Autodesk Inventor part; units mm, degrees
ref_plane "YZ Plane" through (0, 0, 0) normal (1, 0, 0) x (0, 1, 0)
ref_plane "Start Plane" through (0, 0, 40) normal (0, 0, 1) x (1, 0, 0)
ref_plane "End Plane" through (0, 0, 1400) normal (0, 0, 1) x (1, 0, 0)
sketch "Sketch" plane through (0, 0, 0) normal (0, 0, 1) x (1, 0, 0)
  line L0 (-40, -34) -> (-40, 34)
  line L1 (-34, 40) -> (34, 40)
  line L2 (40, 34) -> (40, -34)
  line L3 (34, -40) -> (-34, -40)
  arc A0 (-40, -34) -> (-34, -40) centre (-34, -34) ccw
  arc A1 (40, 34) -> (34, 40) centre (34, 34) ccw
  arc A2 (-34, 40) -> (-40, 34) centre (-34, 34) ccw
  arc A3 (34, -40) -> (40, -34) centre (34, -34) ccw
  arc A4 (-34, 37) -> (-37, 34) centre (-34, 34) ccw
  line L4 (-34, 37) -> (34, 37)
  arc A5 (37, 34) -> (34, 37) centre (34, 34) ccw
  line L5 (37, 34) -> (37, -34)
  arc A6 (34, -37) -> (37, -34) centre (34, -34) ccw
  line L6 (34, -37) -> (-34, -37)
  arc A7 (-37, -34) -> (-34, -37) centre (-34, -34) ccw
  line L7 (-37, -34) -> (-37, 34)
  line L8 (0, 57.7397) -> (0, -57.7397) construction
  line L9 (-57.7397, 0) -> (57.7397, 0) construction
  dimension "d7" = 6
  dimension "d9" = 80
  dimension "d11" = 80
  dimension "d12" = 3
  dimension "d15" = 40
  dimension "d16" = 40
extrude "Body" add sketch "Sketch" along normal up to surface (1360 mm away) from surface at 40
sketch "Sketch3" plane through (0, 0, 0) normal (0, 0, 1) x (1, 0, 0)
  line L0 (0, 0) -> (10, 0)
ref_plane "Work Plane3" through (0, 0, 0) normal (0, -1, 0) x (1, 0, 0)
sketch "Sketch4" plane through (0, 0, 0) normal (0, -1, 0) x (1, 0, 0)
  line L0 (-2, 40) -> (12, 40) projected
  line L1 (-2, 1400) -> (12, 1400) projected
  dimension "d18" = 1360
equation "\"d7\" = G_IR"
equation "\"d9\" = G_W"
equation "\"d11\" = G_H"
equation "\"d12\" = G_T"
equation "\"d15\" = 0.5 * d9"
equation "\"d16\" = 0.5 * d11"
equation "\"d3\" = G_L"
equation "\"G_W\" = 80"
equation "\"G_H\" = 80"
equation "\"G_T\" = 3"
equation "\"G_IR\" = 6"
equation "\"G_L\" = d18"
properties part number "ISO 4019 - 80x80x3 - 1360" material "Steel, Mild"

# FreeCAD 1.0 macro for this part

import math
import FreeCAD as App
import Part
import Sketcher

doc = App.newDocument("Part")
body = doc.addObject("PartDesign::Body", "Body")

# Sketch on XY plane
sketch1 = doc.addObject("Sketcher::SketchObject", "Sketch")
body.addObject(sketch1)
sketch1.AttachmentSupport = (doc.XY_Plane, [""])
sketch1.MapMode = "FlatFace"
sketch1.AttachmentOffset = App.Placement(App.Vector(0, 0, 40), App.Rotation())
sketch1.addGeometry([
    Part.LineSegment(App.Vector(-40, 34, 0), App.Vector(-40, -34, 0)),  # 0
    Part.ArcOfCircle(Part.Circle(App.Vector(-34, -34, 0), App.Vector(0, 0, 1), 6), math.radians(180), math.radians(270)),  # 1
    Part.LineSegment(App.Vector(-34, -40, 0), App.Vector(34, -40, 0)),  # 2
    Part.ArcOfCircle(Part.Circle(App.Vector(34, -34, 0), App.Vector(0, 0, 1), 6), math.radians(-90), math.radians(0)),  # 3
    Part.LineSegment(App.Vector(40, -34, 0), App.Vector(40, 34, 0)),  # 4
    Part.ArcOfCircle(Part.Circle(App.Vector(34, 34, 0), App.Vector(0, 0, 1), 6), math.radians(0), math.radians(90)),  # 5
    Part.LineSegment(App.Vector(34, 40, 0), App.Vector(-34, 40, 0)),  # 6
    Part.ArcOfCircle(Part.Circle(App.Vector(-34, 34, 0), App.Vector(0, 0, 1), 6), math.radians(90), math.radians(180)),  # 7
    Part.ArcOfCircle(Part.Circle(App.Vector(-34, 34, 0), App.Vector(0, 0, 1), 3), math.radians(90), math.radians(180)),  # 8
    Part.LineSegment(App.Vector(-34, 37, 0), App.Vector(34, 37, 0)),  # 9
    Part.ArcOfCircle(Part.Circle(App.Vector(34, 34, 0), App.Vector(0, 0, 1), 3), math.radians(0), math.radians(90)),  # 10
    Part.LineSegment(App.Vector(37, 34, 0), App.Vector(37, -34, 0)),  # 11
    Part.ArcOfCircle(Part.Circle(App.Vector(34, -34, 0), App.Vector(0, 0, 1), 3), math.radians(-90), math.radians(0)),  # 12
    Part.LineSegment(App.Vector(34, -37, 0), App.Vector(-34, -37, 0)),  # 13
    Part.ArcOfCircle(Part.Circle(App.Vector(-34, -34, 0), App.Vector(0, 0, 1), 3), math.radians(180), math.radians(270)),  # 14
    Part.LineSegment(App.Vector(-37, -34, 0), App.Vector(-37, 34, 0)),  # 15
], False)
sketch1.addConstraint([
    Sketcher.Constraint("Tangent", 0, 2, 1, 1),
    Sketcher.Constraint("Tangent", 1, 2, 2, 1),
    Sketcher.Constraint("Tangent", 2, 2, 3, 1),
    Sketcher.Constraint("Tangent", 3, 2, 4, 1),
    Sketcher.Constraint("Tangent", 4, 2, 5, 1),
    Sketcher.Constraint("Tangent", 5, 2, 6, 1),
    Sketcher.Constraint("Tangent", 6, 2, 7, 1),
    Sketcher.Constraint("Tangent", 7, 2, 0, 1),
    Sketcher.Constraint("Tangent", 8, 1, 9, 1),
    Sketcher.Constraint("Tangent", 9, 2, 10, 2),
    Sketcher.Constraint("Tangent", 10, 1, 11, 1),
    Sketcher.Constraint("Tangent", 11, 2, 12, 2),
    Sketcher.Constraint("Tangent", 12, 1, 13, 1),
    Sketcher.Constraint("Tangent", 13, 2, 14, 2),
    Sketcher.Constraint("Tangent", 14, 1, 15, 1),
    Sketcher.Constraint("Tangent", 15, 2, 8, 2),
    Sketcher.Constraint("Vertical", 0),
    Sketcher.Constraint("Horizontal", 2),
    Sketcher.Constraint("Vertical", 4),
    Sketcher.Constraint("Horizontal", 6),
    Sketcher.Constraint("Horizontal", 9),
    Sketcher.Constraint("Vertical", 11),
    Sketcher.Constraint("Horizontal", 13),
    Sketcher.Constraint("Vertical", 15),
    Sketcher.Constraint("Coincident", 8, 3, 7, 3),
    Sketcher.Constraint("Coincident", 10, 3, 5, 3),
    Sketcher.Constraint("Coincident", 12, 3, 3, 3),
    Sketcher.Constraint("Equal", 1, 3),
    Sketcher.Constraint("Equal", 3, 5),
    Sketcher.Constraint("Equal", 5, 7),
    Sketcher.Constraint("Equal", 12, 14),
    Sketcher.Constraint("Symmetric", 1, 3, 5, 3, -1, 1),
    Sketcher.Constraint("Equal", 13, 0),
    Sketcher.Constraint("Radius", 1, 6.0),
    Sketcher.Constraint("Radius", 8, 3.0),
    Sketcher.Constraint("DistanceX", 0, 2, -1, 1, 40.0),
])
pad1 = doc.addObject("PartDesign::Pad", "Pad")
body.addObject(pad1)
pad1.Profile = sketch1
pad1.Length = 1360

doc.recompute()
